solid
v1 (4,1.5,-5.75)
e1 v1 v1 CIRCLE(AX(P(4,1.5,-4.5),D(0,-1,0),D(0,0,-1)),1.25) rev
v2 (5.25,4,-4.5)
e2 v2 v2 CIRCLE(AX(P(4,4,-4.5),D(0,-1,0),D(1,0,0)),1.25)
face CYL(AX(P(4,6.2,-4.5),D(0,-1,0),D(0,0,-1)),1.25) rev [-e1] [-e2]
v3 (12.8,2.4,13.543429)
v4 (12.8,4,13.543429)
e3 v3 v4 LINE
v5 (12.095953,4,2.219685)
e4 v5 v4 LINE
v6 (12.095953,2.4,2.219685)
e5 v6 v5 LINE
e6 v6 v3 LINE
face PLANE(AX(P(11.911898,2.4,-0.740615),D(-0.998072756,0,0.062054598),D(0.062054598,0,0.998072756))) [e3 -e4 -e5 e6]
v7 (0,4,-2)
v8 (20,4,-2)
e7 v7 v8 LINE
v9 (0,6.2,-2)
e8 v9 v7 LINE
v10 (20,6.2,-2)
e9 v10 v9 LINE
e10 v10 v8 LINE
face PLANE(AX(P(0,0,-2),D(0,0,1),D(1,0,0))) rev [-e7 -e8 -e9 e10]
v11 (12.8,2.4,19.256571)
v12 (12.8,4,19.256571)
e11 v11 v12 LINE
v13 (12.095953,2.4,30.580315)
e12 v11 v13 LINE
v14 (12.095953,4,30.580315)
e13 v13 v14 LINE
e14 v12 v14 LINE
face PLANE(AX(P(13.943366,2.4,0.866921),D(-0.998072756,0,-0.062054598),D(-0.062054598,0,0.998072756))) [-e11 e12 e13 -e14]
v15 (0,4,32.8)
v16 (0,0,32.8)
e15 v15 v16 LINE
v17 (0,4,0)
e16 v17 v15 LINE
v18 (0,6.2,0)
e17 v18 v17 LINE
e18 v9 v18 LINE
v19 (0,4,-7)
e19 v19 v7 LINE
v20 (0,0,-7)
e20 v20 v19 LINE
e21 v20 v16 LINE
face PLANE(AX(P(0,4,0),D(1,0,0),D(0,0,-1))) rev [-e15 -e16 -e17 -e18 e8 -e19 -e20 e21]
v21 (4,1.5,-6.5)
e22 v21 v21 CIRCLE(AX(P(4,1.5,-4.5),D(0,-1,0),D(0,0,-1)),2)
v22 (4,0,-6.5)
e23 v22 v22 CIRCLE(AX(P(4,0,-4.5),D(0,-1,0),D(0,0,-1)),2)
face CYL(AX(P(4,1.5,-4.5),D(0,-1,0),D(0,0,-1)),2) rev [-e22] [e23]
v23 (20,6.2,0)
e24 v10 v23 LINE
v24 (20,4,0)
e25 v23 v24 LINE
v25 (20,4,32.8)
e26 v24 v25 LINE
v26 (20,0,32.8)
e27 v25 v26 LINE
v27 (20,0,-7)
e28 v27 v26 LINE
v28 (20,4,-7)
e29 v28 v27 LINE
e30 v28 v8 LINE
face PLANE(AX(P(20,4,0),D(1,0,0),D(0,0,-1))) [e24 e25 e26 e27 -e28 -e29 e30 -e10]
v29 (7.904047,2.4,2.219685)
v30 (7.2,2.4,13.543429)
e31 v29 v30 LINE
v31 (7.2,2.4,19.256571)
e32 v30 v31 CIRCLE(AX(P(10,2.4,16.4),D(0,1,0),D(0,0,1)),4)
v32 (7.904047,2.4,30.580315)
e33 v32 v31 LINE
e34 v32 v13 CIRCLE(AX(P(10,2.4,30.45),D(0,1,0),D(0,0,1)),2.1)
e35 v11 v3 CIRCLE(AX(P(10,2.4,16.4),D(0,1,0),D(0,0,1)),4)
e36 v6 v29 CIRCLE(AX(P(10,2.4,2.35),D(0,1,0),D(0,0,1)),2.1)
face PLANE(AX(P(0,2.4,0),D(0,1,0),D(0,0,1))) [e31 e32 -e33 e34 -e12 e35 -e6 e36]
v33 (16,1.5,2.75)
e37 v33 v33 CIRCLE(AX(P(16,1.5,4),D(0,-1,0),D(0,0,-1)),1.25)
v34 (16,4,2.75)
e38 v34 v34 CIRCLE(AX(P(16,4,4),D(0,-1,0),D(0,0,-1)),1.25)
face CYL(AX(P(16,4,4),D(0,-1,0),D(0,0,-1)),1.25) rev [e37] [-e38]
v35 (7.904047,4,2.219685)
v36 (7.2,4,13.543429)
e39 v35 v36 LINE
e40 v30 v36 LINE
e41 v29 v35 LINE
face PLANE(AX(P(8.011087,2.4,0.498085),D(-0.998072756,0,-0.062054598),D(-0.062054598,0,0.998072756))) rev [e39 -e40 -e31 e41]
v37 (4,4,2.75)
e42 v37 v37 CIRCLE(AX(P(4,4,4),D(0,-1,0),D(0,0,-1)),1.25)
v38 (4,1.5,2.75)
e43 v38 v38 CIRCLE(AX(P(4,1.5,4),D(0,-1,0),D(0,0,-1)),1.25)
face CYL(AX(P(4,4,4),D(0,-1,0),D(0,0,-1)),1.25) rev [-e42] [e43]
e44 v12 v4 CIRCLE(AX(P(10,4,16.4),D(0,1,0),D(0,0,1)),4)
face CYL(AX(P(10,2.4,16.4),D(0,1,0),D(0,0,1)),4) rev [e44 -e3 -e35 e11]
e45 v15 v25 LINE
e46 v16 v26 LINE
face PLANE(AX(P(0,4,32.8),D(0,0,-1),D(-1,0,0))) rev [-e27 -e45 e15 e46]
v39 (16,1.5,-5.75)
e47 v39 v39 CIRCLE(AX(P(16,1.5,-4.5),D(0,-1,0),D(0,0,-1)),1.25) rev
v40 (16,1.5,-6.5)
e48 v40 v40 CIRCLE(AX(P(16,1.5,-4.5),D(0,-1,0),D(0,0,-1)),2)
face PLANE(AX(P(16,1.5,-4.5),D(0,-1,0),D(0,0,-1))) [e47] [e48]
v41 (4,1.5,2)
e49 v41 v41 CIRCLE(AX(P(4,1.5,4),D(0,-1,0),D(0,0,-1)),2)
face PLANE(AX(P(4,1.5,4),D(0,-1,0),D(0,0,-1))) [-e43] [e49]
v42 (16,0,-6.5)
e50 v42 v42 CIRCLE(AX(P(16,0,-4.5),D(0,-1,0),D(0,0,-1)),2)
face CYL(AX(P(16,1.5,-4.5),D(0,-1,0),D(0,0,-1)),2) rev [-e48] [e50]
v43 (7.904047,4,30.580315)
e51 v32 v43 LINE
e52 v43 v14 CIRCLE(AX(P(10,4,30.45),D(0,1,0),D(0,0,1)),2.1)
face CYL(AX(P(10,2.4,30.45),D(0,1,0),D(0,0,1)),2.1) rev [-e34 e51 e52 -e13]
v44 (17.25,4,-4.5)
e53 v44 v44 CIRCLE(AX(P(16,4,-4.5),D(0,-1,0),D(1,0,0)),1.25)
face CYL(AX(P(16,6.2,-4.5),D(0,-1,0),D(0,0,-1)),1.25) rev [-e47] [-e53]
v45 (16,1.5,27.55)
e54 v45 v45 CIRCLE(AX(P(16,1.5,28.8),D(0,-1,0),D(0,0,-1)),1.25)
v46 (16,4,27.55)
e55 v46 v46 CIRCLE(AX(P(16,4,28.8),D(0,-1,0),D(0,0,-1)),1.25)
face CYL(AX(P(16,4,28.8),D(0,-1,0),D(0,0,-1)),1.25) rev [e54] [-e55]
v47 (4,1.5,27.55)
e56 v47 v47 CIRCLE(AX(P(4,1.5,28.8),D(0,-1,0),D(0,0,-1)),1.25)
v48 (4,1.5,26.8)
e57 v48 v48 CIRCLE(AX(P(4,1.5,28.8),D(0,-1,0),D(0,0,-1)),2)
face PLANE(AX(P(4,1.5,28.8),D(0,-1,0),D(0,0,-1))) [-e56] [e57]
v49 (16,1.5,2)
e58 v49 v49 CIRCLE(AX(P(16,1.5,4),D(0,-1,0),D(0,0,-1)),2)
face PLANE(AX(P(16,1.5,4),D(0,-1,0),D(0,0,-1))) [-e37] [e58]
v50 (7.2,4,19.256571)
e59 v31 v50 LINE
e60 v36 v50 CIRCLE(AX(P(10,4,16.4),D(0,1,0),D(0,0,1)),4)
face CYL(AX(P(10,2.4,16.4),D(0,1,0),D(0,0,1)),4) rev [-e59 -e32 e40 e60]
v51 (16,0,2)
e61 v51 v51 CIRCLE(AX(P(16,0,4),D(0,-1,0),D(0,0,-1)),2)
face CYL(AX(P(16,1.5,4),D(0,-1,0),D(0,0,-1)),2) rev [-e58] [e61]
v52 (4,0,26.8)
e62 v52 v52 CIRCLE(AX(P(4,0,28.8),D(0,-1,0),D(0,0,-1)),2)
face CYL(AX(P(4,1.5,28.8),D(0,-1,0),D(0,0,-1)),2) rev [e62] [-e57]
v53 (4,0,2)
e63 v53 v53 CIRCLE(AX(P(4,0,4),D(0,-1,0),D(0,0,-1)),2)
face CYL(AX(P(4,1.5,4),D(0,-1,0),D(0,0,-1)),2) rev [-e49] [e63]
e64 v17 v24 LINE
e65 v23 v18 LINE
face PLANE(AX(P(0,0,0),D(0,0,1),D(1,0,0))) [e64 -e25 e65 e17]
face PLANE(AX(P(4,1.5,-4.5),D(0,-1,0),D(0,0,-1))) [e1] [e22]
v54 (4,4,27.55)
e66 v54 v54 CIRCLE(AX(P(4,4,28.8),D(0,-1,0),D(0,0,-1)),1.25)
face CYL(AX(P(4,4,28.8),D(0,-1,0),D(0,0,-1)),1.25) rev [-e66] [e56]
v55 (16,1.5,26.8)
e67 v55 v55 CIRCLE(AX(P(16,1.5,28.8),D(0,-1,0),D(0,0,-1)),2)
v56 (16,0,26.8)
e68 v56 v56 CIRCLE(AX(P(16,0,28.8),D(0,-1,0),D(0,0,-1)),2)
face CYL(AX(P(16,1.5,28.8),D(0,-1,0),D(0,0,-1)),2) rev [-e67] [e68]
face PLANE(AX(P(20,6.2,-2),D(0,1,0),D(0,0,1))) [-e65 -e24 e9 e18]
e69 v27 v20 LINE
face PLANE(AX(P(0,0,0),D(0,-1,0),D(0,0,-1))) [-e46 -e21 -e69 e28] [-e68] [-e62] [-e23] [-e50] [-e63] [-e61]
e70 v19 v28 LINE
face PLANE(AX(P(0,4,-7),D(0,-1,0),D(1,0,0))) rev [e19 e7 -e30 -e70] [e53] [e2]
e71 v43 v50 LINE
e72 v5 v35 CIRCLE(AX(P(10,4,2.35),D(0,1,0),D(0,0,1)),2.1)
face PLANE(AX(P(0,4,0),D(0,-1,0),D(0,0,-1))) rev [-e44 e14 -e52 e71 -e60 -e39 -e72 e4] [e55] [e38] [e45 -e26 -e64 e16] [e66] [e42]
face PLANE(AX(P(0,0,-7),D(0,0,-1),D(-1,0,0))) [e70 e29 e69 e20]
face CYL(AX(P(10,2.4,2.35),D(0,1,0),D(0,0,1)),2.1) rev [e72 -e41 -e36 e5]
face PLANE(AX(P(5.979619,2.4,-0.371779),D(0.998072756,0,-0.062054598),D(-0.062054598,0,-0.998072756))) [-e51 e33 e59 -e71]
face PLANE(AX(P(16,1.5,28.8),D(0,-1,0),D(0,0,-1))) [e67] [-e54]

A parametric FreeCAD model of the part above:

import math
import FreeCAD as App
import Part
import Sketcher

doc = App.newDocument("Part")
params = doc.addObject("Spreadsheet::Sheet", "Params")
for row, (alias, value) in enumerate([
    ("sketch1_width", "20 mm"),
    ("sketch1_height", "32.8 mm"),
    ("pad1_length", "4 mm"),
    ("sketch2_radius", "4 mm"),
    ("sketch2_radius2", "2.1 mm"),
    ("pocket1_length", "1.6 mm"),
    ("sketch3_diameter", "4 mm"),
    ("pocket2_length", "1.5 mm"),
    ("sketch4_diameter", "2.5 mm"),
    ("sketch5_width", "20 mm"),
    ("sketch5_height", "6.2 mm"),
    ("pad2_length", "2 mm"),
    ("sketch6_width", "20 mm"),
    ("sketch6_height", "4 mm"),
    ("pad3_length", "5 mm"),
    ("sketch7_diameter", "2.5 mm"),
    ("sketch8_diameter", "4 mm"),
    ("pocket5_length", "1.5 mm"),
], start=1):
    params.set(f"A{row}", alias)
    params.set(f"B{row}", "=" + value)
    params.setAlias(f"B{row}", alias)

body = doc.addObject("PartDesign::Body", "Body")

sketch1 = body.newObject("Sketcher::SketchObject", "Sketch")
sketch1.AttachmentSupport = (doc.getObject("XZ_Plane"), [""])
sketch1.MapMode = "FlatFace"
sketch1.addGeometry([
    Part.LineSegment(App.Vector(0, 0, 0), App.Vector(0, 33, 0)),
    Part.LineSegment(App.Vector(0, 33, 0), App.Vector(20, 33, 0)),
    Part.LineSegment(App.Vector(20, 33, 0), App.Vector(20, 0, 0)),
    Part.LineSegment(App.Vector(20, 0, 0), App.Vector(0, 0, 0)),
], False)
sketch1.addConstraint([
    Sketcher.Constraint("Coincident", 0, 2, 1, 1),
    Sketcher.Constraint("Coincident", 1, 2, 2, 1),
    Sketcher.Constraint("Coincident", 2, 2, 3, 1),
    Sketcher.Constraint("Coincident", 3, 2, 0, 1),
    Sketcher.Constraint("Vertical", 0),
    Sketcher.Constraint("Horizontal", 1),
    Sketcher.Constraint("Vertical", 2),
    Sketcher.Constraint("Horizontal", 3),
    Sketcher.Constraint("Coincident", 3, 2, -1, 1),
    Sketcher.Constraint("DistanceX", 1, 1, 1, 2, 20.0),
    Sketcher.Constraint("DistanceY", 0, 1, 0, 2, 32.8),
])
sketch1.setExpression("Constraints[9]", "Params.sketch1_width")
sketch1.setExpression("Constraints[10]", "Params.sketch1_height")
pad1 = body.newObject("PartDesign::Pad", "Pad")
pad1.Profile = sketch1
pad1.setExpression("Length", "Params.pad1_length")
pad1.Reversed = True

sketch2 = body.newObject("Sketcher::SketchObject", "Sketch001")
sketch2.AttachmentSupport = (doc.getObject("XZ_Plane"), [""])
sketch2.MapMode = "FlatFace"
sketch2.AttachmentOffset = App.Placement(App.Vector(0, 0, -4), App.Rotation())
sketch2.addGeometry([
    Part.LineSegment(App.Vector(12.8, 13.5, 0), App.Vector(12.1, 2.2, 0)),
    Part.ArcOfCircle(Part.Circle(App.Vector(10, 2.4, 0), App.Vector(0, 0, 1), 2.1), math.radians(-176), math.radians(-4)),
    Part.LineSegment(App.Vector(7.9, 2.2, 0), App.Vector(7.2, 13.5, 0)),
    Part.ArcOfCircle(Part.Circle(App.Vector(10, 16.4, 0), App.Vector(0, 0, 1), 4), math.radians(134), math.radians(226)),
    Part.LineSegment(App.Vector(7.2, 19.3, 0), App.Vector(7.9, 30.6, 0)),
    Part.ArcOfCircle(Part.Circle(App.Vector(10, 30.4, 0), App.Vector(0, 0, 1), 2.1), math.radians(4), math.radians(176)),
    Part.LineSegment(App.Vector(12.1, 30.6, 0), App.Vector(12.8, 19.3, 0)),
    Part.ArcOfCircle(Part.Circle(App.Vector(10, 16.4, 0), App.Vector(0, 0, 1), 4), math.radians(-46), math.radians(46)),
], False)
sketch2.addConstraint([
    Sketcher.Constraint("Tangent", 0, 2, 1, 2),
    Sketcher.Constraint("Tangent", 1, 1, 2, 1),
    Sketcher.Constraint("Coincident", 2, 2, 3, 2),
    Sketcher.Constraint("Coincident", 3, 1, 4, 1),
    Sketcher.Constraint("Tangent", 4, 2, 5, 2),
    Sketcher.Constraint("Tangent", 5, 1, 6, 1),
    Sketcher.Constraint("Coincident", 6, 2, 7, 2),
    Sketcher.Constraint("Coincident", 7, 1, 0, 1),
    Sketcher.Constraint("Coincident", 7, 3, 3, 3),
    Sketcher.Constraint("Equal", 1, 5),
    Sketcher.Constraint("Equal", 3, 7),
    Sketcher.Constraint("Parallel", 0, 4),
    Sketcher.Constraint("Parallel", 2, 6),
    Sketcher.Constraint("Horizontal", 0, 2, 1, 1),
    Sketcher.Constraint("Horizontal", 3, 1, 6, 2),
    Sketcher.Constraint("Horizontal", 2, 2, 7, 1),
    Sketcher.Constraint("Vertical", 2, 2, 3, 1),
    Sketcher.Constraint("Radius", 3, 4.0),
    Sketcher.Constraint("Radius", 1, 2.1),
    Sketcher.Constraint("DistanceX", -1, 1, 1, 3, 10.0),
    Sketcher.Constraint("DistanceY", -1, 1, 3, 3, 16.4),
    Sketcher.Constraint("DistanceX", -1, 1, 2, 2, 7.2),
    Sketcher.Constraint("DistanceY", 1, 3, 5, 3, 28.1),
])
sketch2.setExpression("Constraints[17]", "Params.sketch2_radius")
sketch2.setExpression("Constraints[18]", "Params.sketch2_radius2")
pocket1 = body.newObject("PartDesign::Pocket", "Pocket")
pocket1.Profile = sketch2
pocket1.setExpression("Length", "Params.pocket1_length")
pocket1.Reversed = True

sketch3 = body.newObject("Sketcher::SketchObject", "Sketch002")
sketch3.AttachmentSupport = (doc.getObject("XZ_Plane"), [""])
sketch3.MapMode = "FlatFace"
sketch3.addGeometry([
    Part.Circle(App.Vector(4, 4, 0), App.Vector(0, 0, 1), 2),
    Part.Circle(App.Vector(4, 28.8, 0), App.Vector(0, 0, 1), 2),
    Part.Circle(App.Vector(16, 28.8, 0), App.Vector(0, 0, 1), 2),
    Part.Circle(App.Vector(16, 4, 0), App.Vector(0, 0, 1), 2),
], False)
sketch3.addConstraint([
    Sketcher.Constraint("Equal", 0, 1),
    Sketcher.Constraint("Equal", 1, 2),
    Sketcher.Constraint("Equal", 2, 3),
    Sketcher.Constraint("Horizontal", 1, 3, 2, 3),
    Sketcher.Constraint("Horizontal", 0, 3, 3, 3),
    Sketcher.Constraint("Vertical", 0, 3, 1, 3),
    Sketcher.Constraint("Vertical", 2, 3, 3, 3),
    Sketcher.Constraint("Diameter", 0, 4.0),
    Sketcher.Constraint("DistanceX", -1, 1, 0, 3, 4.0),
    Sketcher.Constraint("DistanceY", -1, 1, 0, 3, 4.0),
    Sketcher.Constraint("DistanceX", -1, 1, 2, 3, 16.0),
    Sketcher.Constraint("DistanceY", -1, 1, 1, 3, 28.8),
])
sketch3.setExpression("Constraints[7]", "Params.sketch3_diameter")
pocket2 = body.newObject("PartDesign::Pocket", "Pocket001")
pocket2.Profile = sketch3
pocket2.setExpression("Length", "Params.pocket2_length")

sketch4 = body.newObject("Sketcher::SketchObject", "Sketch003")
sketch4.AttachmentSupport = (doc.getObject("XZ_Plane"), [""])
sketch4.MapMode = "FlatFace"
sketch4.addGeometry([
    Part.Circle(App.Vector(4, 4, 0), App.Vector(0, 0, 1), 1.2),
    Part.Circle(App.Vector(4, 28.8, 0), App.Vector(0, 0, 1), 1.2),
    Part.Circle(App.Vector(16, 4, 0), App.Vector(0, 0, 1), 1.2),
    Part.Circle(App.Vector(16, 28.8, 0), App.Vector(0, 0, 1), 1.2),
], False)
sketch4.addConstraint([
    Sketcher.Constraint("Equal", 0, 1),
    Sketcher.Constraint("Equal", 1, 2),
    Sketcher.Constraint("Equal", 2, 3),
    Sketcher.Constraint("Horizontal", 0, 3, 2, 3),
    Sketcher.Constraint("Horizontal", 1, 3, 3, 3),
    Sketcher.Constraint("Vertical", 0, 3, 1, 3),
    Sketcher.Constraint("Vertical", 2, 3, 3, 3),
    Sketcher.Constraint("Diameter", 0, 2.5),
    Sketcher.Constraint("DistanceX", -1, 1, 0, 3, 4.0),
    Sketcher.Constraint("DistanceY", -1, 1, 0, 3, 4.0),
    Sketcher.Constraint("DistanceX", -1, 1, 2, 3, 16.0),
    Sketcher.Constraint("DistanceY", -1, 1, 1, 3, 28.8),
])
sketch4.setExpression("Constraints[7]", "Params.sketch4_diameter")
pocket3 = body.newObject("PartDesign::Pocket", "Pocket002")
pocket3.Profile = sketch4
pocket3.Type = "ThroughAll"

sketch5 = body.newObject("Sketcher::SketchObject", "Sketch004")
sketch5.AttachmentSupport = (doc.getObject("XY_Plane"), [""])
sketch5.MapMode = "FlatFace"
sketch5.addGeometry([
    Part.LineSegment(App.Vector(20, 6, 0), App.Vector(20, 0, 0)),
    Part.LineSegment(App.Vector(20, 0, 0), App.Vector(0, 0, 0)),
    Part.LineSegment(App.Vector(0, 0, 0), App.Vector(0, 6, 0)),
    Part.LineSegment(App.Vector(0, 6, 0), App.Vector(20, 6, 0)),
], False)
sketch5.addConstraint([
    Sketcher.Constraint("Coincident", 0, 2, 1, 1),
    Sketcher.Constraint("Coincident", 1, 2, 2, 1),
    Sketcher.Constraint("Coincident", 2, 2, 3, 1),
    Sketcher.Constraint("Coincident", 3, 2, 0, 1),
    Sketcher.Constraint("Vertical", 0),
    Sketcher.Constraint("Horizontal", 1),
    Sketcher.Constraint("Vertical", 2),
    Sketcher.Constraint("Horizontal", 3),
    Sketcher.Constraint("Coincident", 1, 2, -1, 1),
    Sketcher.Constraint("DistanceX", 1, 2, 1, 1, 20.0),
    Sketcher.Constraint("DistanceY", 0, 2, 0, 1, 6.2),
])
sketch5.setExpression("Constraints[9]", "Params.sketch5_width")
sketch5.setExpression("Constraints[10]", "Params.sketch5_height")
pad2 = body.newObject("PartDesign::Pad", "Pad001")
pad2.Profile = sketch5
pad2.setExpression("Length", "Params.pad2_length")
pad2.Reversed = True

sketch6 = body.newObject("Sketcher::SketchObject", "Sketch005")
sketch6.AttachmentSupport = (doc.getObject("XY_Plane"), [""])
sketch6.MapMode = "FlatFace"
sketch6.AttachmentOffset = App.Placement(App.Vector(0, 0, -2), App.Rotation())
sketch6.addGeometry([
    Part.LineSegment(App.Vector(20, 4, 0), App.Vector(20, 0, 0)),
    Part.LineSegment(App.Vector(20, 0, 0), App.Vector(0, 0, 0)),
    Part.LineSegment(App.Vector(0, 0, 0), App.Vector(0, 4, 0)),
    Part.LineSegment(App.Vector(0, 4, 0), App.Vector(20, 4, 0)),
], False)
sketch6.addConstraint([
    Sketcher.Constraint("Coincident", 0, 2, 1, 1),
    Sketcher.Constraint("Coincident", 1, 2, 2, 1),
    Sketcher.Constraint("Coincident", 2, 2, 3, 1),
    Sketcher.Constraint("Coincident", 3, 2, 0, 1),
    Sketcher.Constraint("Vertical", 0),
    Sketcher.Constraint("Horizontal", 1),
    Sketcher.Constraint("Vertical", 2),
    Sketcher.Constraint("Horizontal", 3),
    Sketcher.Constraint("Coincident", 1, 2, -1, 1),
    Sketcher.Constraint("DistanceX", 1, 2, 1, 1, 20.0),
    Sketcher.Constraint("DistanceY", 0, 2, 0, 1, 4.0),
])
sketch6.setExpression("Constraints[9]", "Params.sketch6_width")
sketch6.setExpression("Constraints[10]", "Params.sketch6_height")
pad3 = body.newObject("PartDesign::Pad", "Pad002")
pad3.Profile = sketch6
pad3.setExpression("Length", "Params.pad3_length")
pad3.Reversed = True

sketch7 = body.newObject("Sketcher::SketchObject", "Sketch006")
sketch7.AttachmentSupport = (doc.getObject("XZ_Plane"), [""])
sketch7.MapMode = "FlatFace"
sketch7.addGeometry([
    Part.Circle(App.Vector(4, -4.5, 0), App.Vector(0, 0, 1), 1.2),
    Part.Circle(App.Vector(16, -4.5, 0), App.Vector(0, 0, 1), 1.2),
], False)
sketch7.addConstraint([
    Sketcher.Constraint("Equal", 0, 1),
    Sketcher.Constraint("Horizontal", 0, 3, 1, 3),
    Sketcher.Constraint("Diameter", 0, 2.5),
    Sketcher.Constraint("DistanceX", -1, 1, 0, 3, 4.0),
    Sketcher.Constraint("DistanceX", -1, 1, 1, 3, 16.0),
    Sketcher.Constraint("DistanceY", 0, 3, -1, 1, 4.5),
])
sketch7.setExpression("Constraints[2]", "Params.sketch7_diameter")
pocket4 = body.newObject("PartDesign::Pocket", "Pocket003")
pocket4.Profile = sketch7
pocket4.Type = "ThroughAll"

sketch8 = body.newObject("Sketcher::SketchObject", "Sketch007")
sketch8.AttachmentSupport = (doc.getObject("XZ_Plane"), [""])
sketch8.MapMode = "FlatFace"
sketch8.addGeometry([
    Part.Circle(App.Vector(4, -4.5, 0), App.Vector(0, 0, 1), 2),
    Part.Circle(App.Vector(16, -4.5, 0), App.Vector(0, 0, 1), 2),
], False)
sketch8.addConstraint([
    Sketcher.Constraint("Equal", 0, 1),
    Sketcher.Constraint("Horizontal", 0, 3, 1, 3),
    Sketcher.Constraint("Diameter", 0, 4.0),
    Sketcher.Constraint("DistanceX", -1, 1, 0, 3, 4.0),
    Sketcher.Constraint("DistanceX", -1, 1, 1, 3, 16.0),
    Sketcher.Constraint("DistanceY", 0, 3, -1, 1, 4.5),
])
sketch8.setExpression("Constraints[2]", "Params.sketch8_diameter")
pocket5 = body.newObject("PartDesign::Pocket", "Pocket004")
pocket5.Profile = sketch8
pocket5.setExpression("Length", "Params.pocket5_length")

doc.recompute()
